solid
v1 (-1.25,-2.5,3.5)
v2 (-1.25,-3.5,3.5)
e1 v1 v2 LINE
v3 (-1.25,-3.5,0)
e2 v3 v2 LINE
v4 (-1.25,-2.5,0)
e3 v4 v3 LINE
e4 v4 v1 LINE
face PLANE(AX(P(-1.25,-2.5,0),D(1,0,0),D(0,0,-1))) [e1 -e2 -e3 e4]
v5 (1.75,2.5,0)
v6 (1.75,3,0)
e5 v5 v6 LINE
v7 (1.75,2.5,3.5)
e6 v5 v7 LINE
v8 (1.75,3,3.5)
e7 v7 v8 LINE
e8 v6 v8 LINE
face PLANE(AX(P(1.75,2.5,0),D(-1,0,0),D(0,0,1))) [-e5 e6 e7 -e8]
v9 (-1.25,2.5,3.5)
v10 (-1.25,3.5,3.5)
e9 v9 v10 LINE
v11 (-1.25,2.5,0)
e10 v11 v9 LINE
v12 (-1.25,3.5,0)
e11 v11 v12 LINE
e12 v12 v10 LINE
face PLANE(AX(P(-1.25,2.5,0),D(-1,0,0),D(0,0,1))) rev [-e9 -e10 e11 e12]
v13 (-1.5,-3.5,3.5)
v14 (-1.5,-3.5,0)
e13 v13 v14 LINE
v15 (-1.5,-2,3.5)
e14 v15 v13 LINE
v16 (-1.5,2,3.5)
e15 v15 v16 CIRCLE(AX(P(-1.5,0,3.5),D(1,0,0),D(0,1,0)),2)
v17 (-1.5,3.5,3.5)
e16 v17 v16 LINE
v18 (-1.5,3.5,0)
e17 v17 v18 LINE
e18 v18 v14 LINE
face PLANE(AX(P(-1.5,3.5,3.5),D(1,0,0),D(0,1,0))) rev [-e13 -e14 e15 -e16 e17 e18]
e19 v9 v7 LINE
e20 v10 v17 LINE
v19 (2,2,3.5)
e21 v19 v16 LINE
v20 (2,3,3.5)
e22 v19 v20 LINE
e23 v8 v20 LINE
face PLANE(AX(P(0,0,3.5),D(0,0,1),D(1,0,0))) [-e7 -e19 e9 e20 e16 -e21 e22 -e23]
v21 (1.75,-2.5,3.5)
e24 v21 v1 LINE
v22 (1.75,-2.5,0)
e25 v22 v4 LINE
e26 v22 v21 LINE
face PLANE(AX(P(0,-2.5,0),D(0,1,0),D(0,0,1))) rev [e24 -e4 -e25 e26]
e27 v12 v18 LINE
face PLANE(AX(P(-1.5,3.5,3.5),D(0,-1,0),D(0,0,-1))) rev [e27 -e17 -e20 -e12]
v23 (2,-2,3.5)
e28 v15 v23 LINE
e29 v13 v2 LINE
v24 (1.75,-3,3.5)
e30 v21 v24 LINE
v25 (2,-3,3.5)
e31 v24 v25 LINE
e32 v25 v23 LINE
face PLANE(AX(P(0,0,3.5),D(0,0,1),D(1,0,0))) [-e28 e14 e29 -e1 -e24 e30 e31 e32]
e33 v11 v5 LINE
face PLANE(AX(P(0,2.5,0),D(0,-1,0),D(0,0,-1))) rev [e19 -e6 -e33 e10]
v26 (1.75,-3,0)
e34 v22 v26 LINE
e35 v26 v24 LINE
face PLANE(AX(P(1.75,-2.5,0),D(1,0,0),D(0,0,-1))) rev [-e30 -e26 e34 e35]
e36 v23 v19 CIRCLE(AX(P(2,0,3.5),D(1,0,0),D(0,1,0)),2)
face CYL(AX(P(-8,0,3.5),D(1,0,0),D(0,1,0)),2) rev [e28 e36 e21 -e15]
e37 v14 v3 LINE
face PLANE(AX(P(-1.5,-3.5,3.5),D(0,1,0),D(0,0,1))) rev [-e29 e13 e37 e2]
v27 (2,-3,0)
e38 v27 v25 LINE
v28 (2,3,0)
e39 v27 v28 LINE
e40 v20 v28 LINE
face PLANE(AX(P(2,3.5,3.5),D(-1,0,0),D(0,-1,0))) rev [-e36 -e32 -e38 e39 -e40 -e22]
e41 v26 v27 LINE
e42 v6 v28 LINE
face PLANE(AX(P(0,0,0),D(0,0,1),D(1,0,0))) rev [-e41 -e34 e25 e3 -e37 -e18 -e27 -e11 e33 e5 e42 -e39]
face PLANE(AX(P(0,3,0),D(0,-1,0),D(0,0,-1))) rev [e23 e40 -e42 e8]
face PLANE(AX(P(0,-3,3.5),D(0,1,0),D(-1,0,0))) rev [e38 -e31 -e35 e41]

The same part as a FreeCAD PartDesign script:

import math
import FreeCAD as App
import Part
import Sketcher
from FreeCAD import Vector
Q = App.Units.Quantity

doc = App.newDocument("Part")
body = doc.addObject("PartDesign::Body", "Body")

sketch1 = body.newObject("Sketcher::SketchObject", "Sketch")
sketch1.AttachmentSupport = (doc.getObject("XY_Plane"), [""])
sketch1.MapMode = "FlatFace"
sketch1.addGeometry([
    Part.LineSegment(Vector(-1.5, 3.5, 0), Vector(-1.5, -3.5, 0)),
    Part.LineSegment(Vector(-1.5, -3.5, 0), Vector(2, -3.5, 0)),
    Part.LineSegment(Vector(2, -3.5, 0), Vector(2, 3.5, 0)),
    Part.LineSegment(Vector(2, 3.5, 0), Vector(-1.5, 3.5, 0)),
], False)
sketch1.addConstraint([
    Sketcher.Constraint("Coincident", 0, 2, 1, 1),
    Sketcher.Constraint("Coincident", 1, 2, 2, 1),
    Sketcher.Constraint("Coincident", 2, 2, 3, 1),
    Sketcher.Constraint("Coincident", 3, 2, 0, 1),
    Sketcher.Constraint("Vertical", 0),
    Sketcher.Constraint("Horizontal", 1),
    Sketcher.Constraint("Vertical", 2),
    Sketcher.Constraint("Horizontal", 3),
    Sketcher.Constraint("DistanceY", 0, 2, 0, 1, Q("7 mm")),
    Sketcher.Constraint("DistanceX", 1, 1, 1, 2, Q("3.5 mm")),
    Sketcher.Constraint("DistanceX", -1, 1, 1, 2, Q("2 mm")),
    Sketcher.Constraint("DistanceY", 0, 2, -1, 1, Q("3.5 mm")),
])
pad1 = body.newObject("PartDesign::Pad", "Pad")
pad1.Profile = sketch1
pad1.Length = 3.5

sketch2 = body.newObject("Sketcher::SketchObject", "Sketch001")
sketch2.AttachmentSupport = (doc.getObject("XZ_Plane"), [""])
sketch2.MapMode = "FlatFace"
sketch2.AttachmentOffset = App.Placement(Vector(0, 0, -3.5), App.Rotation())
sketch2.addGeometry([
    Part.LineSegment(Vector(-1.25, 0, 0), Vector(-1.25, 3.5, 0)),
    Part.LineSegment(Vector(-1.25, 3.5, 0), Vector(1.75, 3.5, 0)),
    Part.LineSegment(Vector(1.75, 3.5, 0), Vector(1.75, 0, 0)),
    Part.LineSegment(Vector(1.75, 0, 0), Vector(-1.25, 0, 0)),
], False)
sketch2.addConstraint([
    Sketcher.Constraint("Coincident", 0, 2, 1, 1),
    Sketcher.Constraint("Coincident", 1, 2, 2, 1),
    Sketcher.Constraint("Coincident", 2, 2, 3, 1),
    Sketcher.Constraint("Coincident", 3, 2, 0, 1),
    Sketcher.Constraint("Vertical", 0),
    Sketcher.Constraint("Horizontal", 1),
    Sketcher.Constraint("Vertical", 2),
    Sketcher.Constraint("Horizontal", 3),
    Sketcher.Constraint("PointOnObject", 2, 2, -1),
    Sketcher.Constraint("DistanceX", 1, 1, 1, 2, Q("3 mm")),
    Sketcher.Constraint("DistanceY", 0, 1, 0, 2, Q("3.5 mm")),
    Sketcher.Constraint("DistanceX", 0, 2, -1, 1, Q("1.25 mm")),
])
pocket1 = body.newObject("PartDesign::Pocket", "Pocket")
pocket1.Profile = sketch2
pocket1.Length = 1
pocket1.Reversed = True

sketch3 = body.newObject("Sketcher::SketchObject", "Sketch002")
sketch3.AttachmentSupport = (doc.getObject("XZ_Plane"), [""])
sketch3.MapMode = "FlatFace"
sketch3.AttachmentOffset = App.Placement(Vector(0, 0, 3.5), App.Rotation())
sketch3.addGeometry([
    Part.LineSegment(Vector(1.75, 0, 0), Vector(1.75, 3.5, 0)),
    Part.LineSegment(Vector(1.75, 3.5, 0), Vector(-1.25, 3.5, 0)),
    Part.LineSegment(Vector(-1.25, 3.5, 0), Vector(-1.25, 0, 0)),
    Part.LineSegment(Vector(-1.25, 0, 0), Vector(1.75, 0, 0)),
], False)
sketch3.addConstraint([
    Sketcher.Constraint("Coincident", 0, 2, 1, 1),
    Sketcher.Constraint("Coincident", 1, 2, 2, 1),
    Sketcher.Constraint("Coincident", 2, 2, 3, 1),
    Sketcher.Constraint("Coincident", 3, 2, 0, 1),
    Sketcher.Constraint("Vertical", 0),
    Sketcher.Constraint("Horizontal", 1),
    Sketcher.Constraint("Vertical", 2),
    Sketcher.Constraint("Horizontal", 3),
    Sketcher.Constraint("PointOnObject", 2, 2, -1),
    Sketcher.Constraint("DistanceX", 1, 2, 1, 1, Q("3 mm")),
    Sketcher.Constraint("DistanceY", 0, 1, 0, 2, Q("3.5 mm")),
    Sketcher.Constraint("DistanceX", -1, 1, 0, 2, Q("1.75 mm")),
])
pocket2 = body.newObject("PartDesign::Pocket", "Pocket001")
pocket2.Profile = sketch3
pocket2.Length = 1

sketch4 = body.newObject("Sketcher::SketchObject", "Sketch003")
sketch4.AttachmentSupport = (doc.getObject("YZ_Plane"), [""])
sketch4.MapMode = "FlatFace"
sketch4.AttachmentOffset = App.Placement(Vector(0, 0, 2), App.Rotation())
sketch4.addGeometry([
    Part.LineSegment(Vector(2, 3.5, 0), Vector(-2, 3.5, 0)),
    Part.ArcOfCircle(Part.Circle(Vector(0, 3.5, 0), Vector(0, 0, 1), 2), math.radians(180), math.radians(360)),
], False)
sketch4.addConstraint([
    Sketcher.Constraint("Coincident", 0, 1, 1, 2),
    Sketcher.Constraint("Coincident", 1, 1, 0, 2),
    Sketcher.Constraint("Horizontal", 0),
    Sketcher.Constraint("PointOnObject", 1, 3, -2),
    Sketcher.Constraint("Horizontal", 1, 3, 0, 1),
    Sketcher.Constraint("Radius", 1, Q("2 mm")),
    Sketcher.Constraint("DistanceY", -1, 1, 1, 3, Q("3.5 mm")),
])
pocket3 = body.newObject("PartDesign::Pocket", "Pocket002")
pocket3.Profile = sketch4
pocket3.Length = 10

sketch5 = body.newObject("Sketcher::SketchObject", "Sketch004")
sketch5.AttachmentSupport = (doc.getObject("YZ_Plane"), [""])
sketch5.MapMode = "FlatFace"
sketch5.AttachmentOffset = App.Placement(Vector(0, 0, 2), App.Rotation())
sketch5.addGeometry([
    Part.LineSegment(Vector(3.5, 3.5, 0), Vector(3, 3.5, 0)),
    Part.LineSegment(Vector(3, 3.5, 0), Vector(3, 0, 0)),
    Part.LineSegment(Vector(3, 0, 0), Vector(3.5, 0, 0)),
    Part.LineSegment(Vector(3.5, 0, 0), Vector(3.5, 3.5, 0)),
    Part.LineSegment(Vector(-3, 3.5, 0), Vector(-3.5, 3.5, 0)),
    Part.LineSegment(Vector(-3.5, 3.5, 0), Vector(-3.5, 0, 0)),
    Part.LineSegment(Vector(-3.5, 0, 0), Vector(-3, 0, 0)),
    Part.LineSegment(Vector(-3, 0, 0), Vector(-3, 3.5, 0)),
], False)
sketch5.addConstraint([
    Sketcher.Constraint("Coincident", 0, 2, 1, 1),
    Sketcher.Constraint("Coincident", 1, 2, 2, 1),
    Sketcher.Constraint("Coincident", 2, 2, 3, 1),
    Sketcher.Constraint("Coincident", 3, 2, 0, 1),
    Sketcher.Constraint("Coincident", 4, 2, 5, 1),
    Sketcher.Constraint("Coincident", 5, 2, 6, 1),
    Sketcher.Constraint("Coincident", 6, 2, 7, 1),
    Sketcher.Constraint("Coincident", 7, 2, 4, 1),
    Sketcher.Constraint("Horizontal", 0),
    Sketcher.Constraint("Vertical", 1),
    Sketcher.Constraint("Horizontal", 2),
    Sketcher.Constraint("Vertical", 3),
    Sketcher.Constraint("Horizontal", 4),
    Sketcher.Constraint("Vertical", 5),
    Sketcher.Constraint("Horizontal", 6),
    Sketcher.Constraint("Vertical", 7),
    Sketcher.Constraint("Symmetric", 2, 2, 5, 2, -1, 1),
    Sketcher.Constraint("Symmetric", 1, 2, 6, 2, -2),
    Sketcher.Constraint("Horizontal", 3, 2, 4, 2),
    Sketcher.Constraint("DistanceX", 0, 2, 0, 1, Q("0.5 mm")),
    Sketcher.Constraint("DistanceY", 1, 2, 1, 1, Q("3.5 mm")),
    Sketcher.Constraint("DistanceX", -1, 1, 0, 2, Q("3 mm")),
])
pocket4 = body.newObject("PartDesign::Pocket", "Pocket003")
pocket4.Profile = sketch5
pocket4.Length = 2

doc.recompute()
